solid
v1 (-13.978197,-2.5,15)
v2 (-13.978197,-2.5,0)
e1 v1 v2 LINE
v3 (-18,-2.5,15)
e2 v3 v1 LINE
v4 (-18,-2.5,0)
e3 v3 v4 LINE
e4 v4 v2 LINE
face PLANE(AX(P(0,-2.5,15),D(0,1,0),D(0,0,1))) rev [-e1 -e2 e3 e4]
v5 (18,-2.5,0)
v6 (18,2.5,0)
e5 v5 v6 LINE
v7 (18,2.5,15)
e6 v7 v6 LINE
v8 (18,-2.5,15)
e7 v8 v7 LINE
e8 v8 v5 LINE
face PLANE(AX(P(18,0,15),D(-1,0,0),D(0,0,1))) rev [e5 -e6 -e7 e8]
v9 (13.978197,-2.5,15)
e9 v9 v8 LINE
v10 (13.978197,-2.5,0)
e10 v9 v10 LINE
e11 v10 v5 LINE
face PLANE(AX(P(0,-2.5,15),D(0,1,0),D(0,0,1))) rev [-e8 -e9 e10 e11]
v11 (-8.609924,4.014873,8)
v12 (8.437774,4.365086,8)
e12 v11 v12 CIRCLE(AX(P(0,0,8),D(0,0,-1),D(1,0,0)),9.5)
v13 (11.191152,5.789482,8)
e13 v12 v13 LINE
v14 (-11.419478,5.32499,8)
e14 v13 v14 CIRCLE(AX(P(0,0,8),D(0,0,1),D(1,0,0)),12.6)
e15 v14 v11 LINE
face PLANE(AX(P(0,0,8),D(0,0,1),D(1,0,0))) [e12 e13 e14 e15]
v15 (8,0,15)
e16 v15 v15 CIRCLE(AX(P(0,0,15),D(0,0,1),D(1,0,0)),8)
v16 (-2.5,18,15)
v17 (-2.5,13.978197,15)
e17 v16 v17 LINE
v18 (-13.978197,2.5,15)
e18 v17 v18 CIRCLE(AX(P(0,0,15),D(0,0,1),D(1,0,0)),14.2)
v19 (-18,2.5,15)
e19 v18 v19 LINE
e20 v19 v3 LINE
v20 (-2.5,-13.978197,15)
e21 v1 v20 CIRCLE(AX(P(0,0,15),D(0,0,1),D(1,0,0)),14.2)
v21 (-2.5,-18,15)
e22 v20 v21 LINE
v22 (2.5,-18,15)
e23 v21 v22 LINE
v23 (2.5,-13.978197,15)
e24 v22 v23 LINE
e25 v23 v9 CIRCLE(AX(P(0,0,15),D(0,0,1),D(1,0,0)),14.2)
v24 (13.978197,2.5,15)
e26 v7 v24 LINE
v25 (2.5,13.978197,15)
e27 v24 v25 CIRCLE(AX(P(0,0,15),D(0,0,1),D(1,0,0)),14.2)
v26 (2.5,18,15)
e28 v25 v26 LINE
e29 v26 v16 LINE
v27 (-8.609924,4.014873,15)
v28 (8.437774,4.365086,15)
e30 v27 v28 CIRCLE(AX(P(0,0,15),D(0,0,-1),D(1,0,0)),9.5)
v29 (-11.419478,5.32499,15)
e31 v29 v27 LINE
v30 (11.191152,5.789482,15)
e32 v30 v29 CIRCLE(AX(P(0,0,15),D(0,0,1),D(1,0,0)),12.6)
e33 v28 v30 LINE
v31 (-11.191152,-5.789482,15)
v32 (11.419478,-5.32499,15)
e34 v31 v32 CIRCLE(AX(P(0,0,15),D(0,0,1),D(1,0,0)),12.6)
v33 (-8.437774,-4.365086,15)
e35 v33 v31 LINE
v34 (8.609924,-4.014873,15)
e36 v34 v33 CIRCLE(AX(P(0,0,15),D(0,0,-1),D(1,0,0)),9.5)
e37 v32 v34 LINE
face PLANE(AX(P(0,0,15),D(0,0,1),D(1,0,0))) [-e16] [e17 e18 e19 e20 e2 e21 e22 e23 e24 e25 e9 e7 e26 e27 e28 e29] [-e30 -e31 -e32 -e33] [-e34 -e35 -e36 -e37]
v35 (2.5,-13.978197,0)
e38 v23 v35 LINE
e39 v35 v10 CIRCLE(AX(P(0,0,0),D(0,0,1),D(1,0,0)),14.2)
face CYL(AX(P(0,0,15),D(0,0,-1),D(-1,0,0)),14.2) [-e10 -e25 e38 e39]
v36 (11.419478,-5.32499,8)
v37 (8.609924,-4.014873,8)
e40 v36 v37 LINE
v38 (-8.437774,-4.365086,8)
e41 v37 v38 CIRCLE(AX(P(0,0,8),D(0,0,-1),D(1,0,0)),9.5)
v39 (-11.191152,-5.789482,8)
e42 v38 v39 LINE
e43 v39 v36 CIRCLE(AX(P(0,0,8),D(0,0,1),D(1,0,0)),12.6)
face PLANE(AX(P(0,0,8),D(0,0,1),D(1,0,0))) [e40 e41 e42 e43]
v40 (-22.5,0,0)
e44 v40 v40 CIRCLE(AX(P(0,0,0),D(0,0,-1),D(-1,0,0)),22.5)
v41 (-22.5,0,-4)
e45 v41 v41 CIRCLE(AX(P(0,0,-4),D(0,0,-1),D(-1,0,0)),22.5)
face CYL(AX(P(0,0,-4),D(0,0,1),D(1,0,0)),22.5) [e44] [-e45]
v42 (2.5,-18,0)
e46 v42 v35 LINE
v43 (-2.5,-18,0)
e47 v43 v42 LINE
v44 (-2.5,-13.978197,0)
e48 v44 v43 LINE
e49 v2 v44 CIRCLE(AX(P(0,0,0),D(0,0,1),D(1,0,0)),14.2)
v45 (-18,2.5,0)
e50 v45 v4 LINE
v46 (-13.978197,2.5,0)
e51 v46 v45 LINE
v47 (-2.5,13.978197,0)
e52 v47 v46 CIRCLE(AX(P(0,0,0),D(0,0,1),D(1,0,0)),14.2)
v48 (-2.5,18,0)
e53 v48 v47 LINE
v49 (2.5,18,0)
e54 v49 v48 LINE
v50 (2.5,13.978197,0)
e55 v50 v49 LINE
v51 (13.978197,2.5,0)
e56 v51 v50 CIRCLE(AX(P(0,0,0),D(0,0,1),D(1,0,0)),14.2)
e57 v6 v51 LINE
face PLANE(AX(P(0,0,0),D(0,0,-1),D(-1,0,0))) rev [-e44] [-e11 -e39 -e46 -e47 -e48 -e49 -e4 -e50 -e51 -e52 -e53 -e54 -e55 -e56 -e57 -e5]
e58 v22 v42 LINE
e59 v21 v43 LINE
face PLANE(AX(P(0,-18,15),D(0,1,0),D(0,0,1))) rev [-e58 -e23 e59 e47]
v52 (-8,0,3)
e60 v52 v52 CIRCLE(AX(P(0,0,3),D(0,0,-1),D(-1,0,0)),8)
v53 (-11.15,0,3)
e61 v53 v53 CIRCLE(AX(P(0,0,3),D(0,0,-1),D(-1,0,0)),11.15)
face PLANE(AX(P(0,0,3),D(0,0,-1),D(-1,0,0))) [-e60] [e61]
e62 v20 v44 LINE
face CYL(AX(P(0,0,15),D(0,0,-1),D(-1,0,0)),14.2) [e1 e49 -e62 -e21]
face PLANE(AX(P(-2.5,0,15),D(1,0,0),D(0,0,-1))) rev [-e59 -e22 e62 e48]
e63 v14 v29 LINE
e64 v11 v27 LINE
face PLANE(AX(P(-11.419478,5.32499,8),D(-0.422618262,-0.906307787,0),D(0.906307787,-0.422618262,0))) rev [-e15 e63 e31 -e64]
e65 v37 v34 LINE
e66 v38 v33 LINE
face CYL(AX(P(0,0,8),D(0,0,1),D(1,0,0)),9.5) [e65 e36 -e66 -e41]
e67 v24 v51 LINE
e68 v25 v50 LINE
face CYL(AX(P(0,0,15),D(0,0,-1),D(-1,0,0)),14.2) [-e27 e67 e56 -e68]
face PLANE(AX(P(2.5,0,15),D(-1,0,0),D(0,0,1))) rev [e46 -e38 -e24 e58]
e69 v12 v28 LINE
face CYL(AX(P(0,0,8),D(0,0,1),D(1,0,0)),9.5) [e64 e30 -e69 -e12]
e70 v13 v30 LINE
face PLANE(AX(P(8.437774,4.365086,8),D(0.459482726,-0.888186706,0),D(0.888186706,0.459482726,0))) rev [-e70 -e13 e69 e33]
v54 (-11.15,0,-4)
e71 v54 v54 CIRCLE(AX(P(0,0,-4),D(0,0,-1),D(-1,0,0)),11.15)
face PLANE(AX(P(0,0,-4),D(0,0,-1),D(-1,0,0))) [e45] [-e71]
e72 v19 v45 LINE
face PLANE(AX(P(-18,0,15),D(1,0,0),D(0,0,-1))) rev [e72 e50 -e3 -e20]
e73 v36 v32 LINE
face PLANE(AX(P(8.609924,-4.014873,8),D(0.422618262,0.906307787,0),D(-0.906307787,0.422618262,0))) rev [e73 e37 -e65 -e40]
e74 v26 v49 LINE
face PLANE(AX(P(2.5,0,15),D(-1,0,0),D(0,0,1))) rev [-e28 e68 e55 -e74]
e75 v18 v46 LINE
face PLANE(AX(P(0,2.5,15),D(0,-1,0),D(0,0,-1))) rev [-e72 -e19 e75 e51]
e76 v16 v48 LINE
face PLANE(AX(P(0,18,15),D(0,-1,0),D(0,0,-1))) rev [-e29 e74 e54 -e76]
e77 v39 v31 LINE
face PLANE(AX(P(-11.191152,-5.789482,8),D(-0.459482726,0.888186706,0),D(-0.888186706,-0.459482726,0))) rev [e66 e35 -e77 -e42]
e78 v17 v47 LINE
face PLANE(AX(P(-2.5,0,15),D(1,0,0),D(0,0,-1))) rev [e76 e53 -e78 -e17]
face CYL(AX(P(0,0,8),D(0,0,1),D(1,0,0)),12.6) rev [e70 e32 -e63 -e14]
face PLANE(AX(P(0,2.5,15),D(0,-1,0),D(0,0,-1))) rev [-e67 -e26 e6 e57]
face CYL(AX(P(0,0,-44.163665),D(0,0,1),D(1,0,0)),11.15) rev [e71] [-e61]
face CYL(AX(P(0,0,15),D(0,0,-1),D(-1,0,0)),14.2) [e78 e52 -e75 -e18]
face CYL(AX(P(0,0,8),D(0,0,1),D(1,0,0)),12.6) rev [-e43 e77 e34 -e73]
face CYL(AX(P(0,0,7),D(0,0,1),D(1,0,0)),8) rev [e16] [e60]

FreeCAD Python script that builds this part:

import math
import FreeCAD as App
import Part
import Sketcher

V = App.Vector
Q = App.Units.Quantity

doc = App.newDocument("Part")
body = doc.addObject("PartDesign::Body", "Body")

sketch1 = doc.addObject("Sketcher::SketchObject", "Sketch")
body.addObject(sketch1)
sketch1.AttachmentSupport = (doc.XY_Plane, [""])
sketch1.MapMode = "FlatFace"
sketch1.addGeometry([
    Part.LineSegment(V(-2.5, 18, 0), V(-2.5, 14, 0)),
    Part.ArcOfCircle(Part.Circle(V(0, 0, 0), V(0, 0, 1), 14.2), math.radians(100), math.radians(170)),
    Part.LineSegment(V(-14, 2.5, 0), V(-18, 2.5, 0)),
    Part.LineSegment(V(-18, 2.5, 0), V(-18, -2.5, 0)),
    Part.LineSegment(V(-18, -2.5, 0), V(-14, -2.5, 0)),
    Part.ArcOfCircle(Part.Circle(V(0, 0, 0), V(0, 0, 1), 14.2), math.radians(-170), math.radians(-100)),
    Part.LineSegment(V(-2.5, -14, 0), V(-2.5, -18, 0)),
    Part.LineSegment(V(-2.5, -18, 0), V(2.5, -18, 0)),
    Part.LineSegment(V(2.5, -18, 0), V(2.5, -14, 0)),
    Part.ArcOfCircle(Part.Circle(V(0, 0, 0), V(0, 0, 1), 14.2), math.radians(-80), math.radians(-10)),
    Part.LineSegment(V(14, -2.5, 0), V(18, -2.5, 0)),
    Part.LineSegment(V(18, -2.5, 0), V(18, 2.5, 0)),
    Part.LineSegment(V(18, 2.5, 0), V(14, 2.5, 0)),
    Part.ArcOfCircle(Part.Circle(V(0, 0, 0), V(0, 0, 1), 14.2), math.radians(10), math.radians(80)),
    Part.LineSegment(V(2.5, 14, 0), V(2.5, 18, 0)),
    Part.LineSegment(V(2.5, 18, 0), V(-2.5, 18, 0)),
    Part.Circle(V(0, 0, 0), V(0, 0, 1), 11.2),
], False)
sketch1.addConstraint([
    Sketcher.Constraint("Coincident", 0, 2, 1, 1),
    Sketcher.Constraint("Coincident", 1, 2, 2, 1),
    Sketcher.Constraint("Coincident", 2, 2, 3, 1),
    Sketcher.Constraint("Coincident", 3, 2, 4, 1),
    Sketcher.Constraint("Coincident", 4, 2, 5, 1),
    Sketcher.Constraint("Coincident", 5, 2, 6, 1),
    Sketcher.Constraint("Coincident", 6, 2, 7, 1),
    Sketcher.Constraint("Coincident", 7, 2, 8, 1),
    Sketcher.Constraint("Coincident", 8, 2, 9, 1),
    Sketcher.Constraint("Coincident", 9, 2, 10, 1),
    Sketcher.Constraint("Coincident", 10, 2, 11, 1),
    Sketcher.Constraint("Coincident", 11, 2, 12, 1),
    Sketcher.Constraint("Coincident", 12, 2, 13, 1),
    Sketcher.Constraint("Coincident", 13, 2, 14, 1),
    Sketcher.Constraint("Coincident", 14, 2, 15, 1),
    Sketcher.Constraint("Coincident", 15, 2, 0, 1),
    Sketcher.Constraint("Vertical", 0),
    Sketcher.Constraint("Horizontal", 2),
    Sketcher.Constraint("Vertical", 3),
    Sketcher.Constraint("Horizontal", 4),
    Sketcher.Constraint("Vertical", 6),
    Sketcher.Constraint("Horizontal", 7),
    Sketcher.Constraint("Vertical", 8),
    Sketcher.Constraint("Horizontal", 10),
    Sketcher.Constraint("Vertical", 11),
    Sketcher.Constraint("Horizontal", 12),
    Sketcher.Constraint("Vertical", 14),
    Sketcher.Constraint("Horizontal", 15),
    Sketcher.Constraint("Coincident", 1, 3, -1, 1),
    Sketcher.Constraint("Coincident", 5, 3, -1, 1),
    Sketcher.Constraint("Coincident", 9, 3, -1, 1),
    Sketcher.Constraint("Coincident", 13, 3, -1, 1),
    Sketcher.Constraint("Coincident", 16, 3, -1, 1),
    Sketcher.Constraint("Equal", 1, 5),
    Sketcher.Constraint("Equal", 5, 9),
    Sketcher.Constraint("Equal", 9, 13),
    Sketcher.Constraint("Symmetric", 2, 2, 10, 2, -1, 1),
    Sketcher.Constraint("Symmetric", 6, 2, 14, 2, -1, 1),
    Sketcher.Constraint("Horizontal", 5, 2, 8, 2),
    Sketcher.Constraint("Horizontal", 4, 2, 9, 2),
    Sketcher.Constraint("Horizontal", 2, 2, 11, 2),
    Sketcher.Constraint("Horizontal", 0, 2, 13, 2),
    Sketcher.Constraint("Equal", 12, 0),
    Sketcher.Constraint("Equal", 15, 3),
    Sketcher.Constraint("Diameter", 16, Q("22.3 mm")),
    Sketcher.Constraint("Radius", 1, Q("14.2 mm")),
    Sketcher.Constraint("DistanceX", 7, 1, 7, 2, Q("5 mm")),
    Sketcher.Constraint("DistanceX", 2, 2, -1, 1, Q("18 mm")),
])
pad1 = doc.addObject("PartDesign::Pad", "Pad")
body.addObject(pad1)
pad1.Profile = sketch1
pad1.Length = 15

sketch2 = doc.addObject("Sketcher::SketchObject", "Sketch001")
body.addObject(sketch2)
sketch2.AttachmentSupport = (doc.XY_Plane, [""])
sketch2.MapMode = "FlatFace"
sketch2.AttachmentOffset = App.Placement(V(0, 0, 7), App.Rotation())
sketch2.addGeometry([
    Part.Circle(V(0, 0, 0), V(0, 0, 1), 11),
    Part.Circle(V(0, 0, 0), V(0, 0, 1), 8),
], False)
sketch2.addConstraint([
    Sketcher.Constraint("Coincident", 0, 3, -1, 1),
    Sketcher.Constraint("Coincident", 1, 3, -1, 1),
    Sketcher.Constraint("Diameter", 1, Q("16 mm")),
    Sketcher.Constraint("Diameter", 0, Q("22.3 mm")),
])
pad2 = doc.addObject("PartDesign::Pad", "Pad001")
body.addObject(pad2)
pad2.Profile = sketch2
pad2.Length = 8
body2 = doc.addObject("PartDesign::Body", "Body001")

sketch3 = doc.addObject("Sketcher::SketchObject", "Sketch002")
body2.addObject(sketch3)
sketch3.AttachmentSupport = (doc.getObject("XY_Plane001"), [""])
sketch3.MapMode = "FlatFace"
sketch3.addGeometry([
    Part.Circle(V(0, 0, 0), V(0, 0, 1), 22),
    Part.ArcOfCircle(Part.Circle(V(0, 0, 0), V(0, 0, 1), 14), math.radians(10), math.radians(80)),
    Part.ArcOfCircle(Part.Circle(V(0, 0, 0), V(0, 0, 1), 14), math.radians(80), math.radians(100)),
    Part.ArcOfCircle(Part.Circle(V(0, 0, 0), V(0, 0, 1), 14), math.radians(100), math.radians(170)),
    Part.ArcOfCircle(Part.Circle(V(0, 0, 0), V(0, 0, 1), 14), math.radians(170), math.radians(190)),
    Part.ArcOfCircle(Part.Circle(V(0, 0, 0), V(0, 0, 1), 14), math.radians(-170), math.radians(-100)),
    Part.ArcOfCircle(Part.Circle(V(0, 0, 0), V(0, 0, 1), 14), math.radians(-100), math.radians(-80)),
    Part.ArcOfCircle(Part.Circle(V(0, 0, 0), V(0, 0, 1), 14), math.radians(-80), math.radians(-10)),
    Part.ArcOfCircle(Part.Circle(V(0, 0, 0), V(0, 0, 1), 14), math.radians(-10), math.radians(10)),
], False)
sketch3.addConstraint([
    Sketcher.Constraint("Tangent", 1, 2, 2, 1),
    Sketcher.Constraint("Tangent", 2, 2, 3, 1),
    Sketcher.Constraint("Tangent", 3, 2, 4, 1),
    Sketcher.Constraint("Tangent", 4, 2, 5, 1),
    Sketcher.Constraint("Tangent", 5, 2, 6, 1),
    Sketcher.Constraint("Tangent", 6, 2, 7, 1),
    Sketcher.Constraint("Tangent", 7, 2, 8, 1),
    Sketcher.Constraint("Tangent", 8, 2, 1, 1),
    Sketcher.Constraint("Coincident", 0, 3, -1, 1),
    Sketcher.Constraint("Coincident", 1, 3, -1, 1),
    Sketcher.Constraint("Coincident", 3, 3, -1, 1),
    Sketcher.Constraint("Coincident", 5, 3, -1, 1),
    Sketcher.Constraint("Equal", 5, 6),
    Sketcher.Constraint("Horizontal", 1, 2, 2, 2),
    Sketcher.Constraint("Horizontal", 5, 2, 6, 2),
    Sketcher.Constraint("Horizontal", 4, 2, 7, 2),
    Sketcher.Constraint("Horizontal", 3, 2, 8, 2),
    Sketcher.Constraint("Vertical", 3, 2, 4, 2),
    Sketcher.Constraint("Vertical", 2, 2, 5, 2),
    Sketcher.Constraint("Diameter", 0, Q("45 mm")),
    Sketcher.Constraint("Radius", 1, Q("14.2 mm")),
    Sketcher.Constraint("DistanceX", 2, 2, 1, 2, Q("5 mm")),
    Sketcher.Constraint("DistanceY", 4, 2, 3, 2, Q("5 mm")),
])
pad3 = doc.addObject("PartDesign::Pad", "Pad002")
body2.addObject(pad3)
pad3.Profile = sketch3
pad3.Length = 4
pad3.Reversed = True
doc.recompute()

boolean = doc.addObject("PartDesign::Boolean", "Boolean")
body.addObject(boolean)
boolean.Type = "Fuse"
boolean.addObjects([body2])

sketch4 = doc.addObject("Sketcher::SketchObject", "Sketch003")
body.addObject(sketch4)
sketch4.AttachmentSupport = (doc.XY_Plane, [""])
sketch4.MapMode = "FlatFace"
sketch4.AttachmentOffset = App.Placement(V(0, 0, -4), App.Rotation())
sketch4.addGeometry([
    Part.Circle(V(0, 0, 0), V(0, 0, 1), 14),
    Part.Circle(V(0, 0, 0), V(0, 0, 1), 11),
], False)
sketch4.addConstraint([
    Sketcher.Constraint("Coincident", 0, 3, -1, 1),
    Sketcher.Constraint("Coincident", 1, 3, -1, 1),
    Sketcher.Constraint("Diameter", 0, Q("28.4 mm")),
    Sketcher.Constraint("Diameter", 1, Q("22.3 mm")),
])
pad4 = doc.addObject("PartDesign::Pad", "Pad003")
body.addObject(pad4)
pad4.Profile = sketch4
pad4.Length = 4

sketch5 = doc.addObject("Sketcher::SketchObject", "Sketch004")
body.addObject(sketch5)
sketch5.AttachmentSupport = (doc.XY_Plane, [""])
sketch5.MapMode = "FlatFace"
sketch5.AttachmentOffset = App.Placement(V(0, 0, 3), App.Rotation())
sketch5.addGeometry([
    Part.Circle(V(0, 0, 0), V(0, 0, 1), 11),
    Part.Circle(V(0, 0, 0), V(0, 0, 1), 8),
], False)
sketch5.addConstraint([
    Sketcher.Constraint("Coincident", 0, 3, -1, 1),
    Sketcher.Constraint("Coincident", 1, 3, -1, 1),
    Sketcher.Constraint("Diameter", 1, Q("16 mm")),
    Sketcher.Constraint("Diameter", 0, Q("22.3 mm")),
])
pad5 = doc.addObject("PartDesign::Pad", "Pad004")
body.addObject(pad5)
pad5.Profile = sketch5
pad5.Length = 4

sketch6 = doc.addObject("Sketcher::SketchObject", "Sketch005")
body.addObject(sketch6)
sketch6.AttachmentSupport = (doc.XY_Plane, [""])
sketch6.MapMode = "FlatFace"
sketch6.AttachmentOffset = App.Placement(V(0, 0, 15), App.Rotation())
sketch6.addGeometry([
    Part.LineSegment(V(-8.4, -4.4, 0), V(-11.2, -5.8, 0)),
    Part.ArcOfCircle(Part.Circle(V(0, 0, 0), V(0, 0, 1), 12.6), math.radians(-153), math.radians(-25)),
    Part.LineSegment(V(11.4, -5.3, 0), V(8.6, -4, 0)),
    Part.ArcOfCircle(Part.Circle(V(0, 0, 0), V(0, 0, 1), 9.5), math.radians(-153), math.radians(-25)),
    Part.LineSegment(V(-11.4, 5.3, 0), V(-8.6, 4, 0)),
    Part.ArcOfCircle(Part.Circle(V(0, 0, 0), V(0, 0, 1), 9.5), math.radians(27), math.radians(155)),
    Part.LineSegment(V(8.4, 4.4, 0), V(11.2, 5.8, 0)),
    Part.ArcOfCircle(Part.Circle(V(0, 0, 0), V(0, 0, 1), 12.6), math.radians(27), math.radians(155)),
], False)
sketch6.addConstraint([
    Sketcher.Constraint("Coincident", 0, 2, 1, 1),
    Sketcher.Constraint("Coincident", 1, 2, 2, 1),
    Sketcher.Constraint("Coincident", 2, 2, 3, 2),
    Sketcher.Constraint("Coincident", 3, 1, 0, 1),
    Sketcher.Constraint("Coincident", 4, 2, 5, 2),
    Sketcher.Constraint("Coincident", 5, 1, 6, 1),
    Sketcher.Constraint("Coincident", 6, 2, 7, 1),
    Sketcher.Constraint("Coincident", 7, 2, 4, 1),
    Sketcher.Constraint("Coincident", 1, 3, -1, 1),
    Sketcher.Constraint("Coincident", 3, 3, -1, 1),
    Sketcher.Constraint("Coincident", 5, 3, -1, 1),
    Sketcher.Constraint("Coincident", 7, 3, -1, 1),
    Sketcher.Constraint("Equal", 3, 5),
    Sketcher.Constraint("Equal", 1, 7),
    Sketcher.Constraint("Parallel", 2, 4),
    Sketcher.Constraint("Parallel", 0, 6),
    Sketcher.Constraint("Radius", 1, Q("12.6 mm")),
    Sketcher.Constraint("Radius", 3, Q("9.5 mm")),
    Sketcher.Constraint("Angle", 2, Q("155 deg")),
    Sketcher.Constraint("DistanceX", -1, 1, 1, 2, Q("11.419478 mm")),
    Sketcher.Constraint("DistanceX", 7, 2, -1, 1, Q("11.419478 mm")),
    Sketcher.Constraint("DistanceX", 0, 2, 1, 2, Q("22.610631 mm")),
    Sketcher.Constraint("DistanceX", 0, 2, 3, 1, Q("2.753379 mm")),
    Sketcher.Constraint("DistanceX", 5, 1, 2, 2, Q("0.17215 mm")),
])
pocket1 = doc.addObject("PartDesign::Pocket", "Pocket")
body.addObject(pocket1)
pocket1.Profile = sketch6
pocket1.Length = 7

doc.recompute()
